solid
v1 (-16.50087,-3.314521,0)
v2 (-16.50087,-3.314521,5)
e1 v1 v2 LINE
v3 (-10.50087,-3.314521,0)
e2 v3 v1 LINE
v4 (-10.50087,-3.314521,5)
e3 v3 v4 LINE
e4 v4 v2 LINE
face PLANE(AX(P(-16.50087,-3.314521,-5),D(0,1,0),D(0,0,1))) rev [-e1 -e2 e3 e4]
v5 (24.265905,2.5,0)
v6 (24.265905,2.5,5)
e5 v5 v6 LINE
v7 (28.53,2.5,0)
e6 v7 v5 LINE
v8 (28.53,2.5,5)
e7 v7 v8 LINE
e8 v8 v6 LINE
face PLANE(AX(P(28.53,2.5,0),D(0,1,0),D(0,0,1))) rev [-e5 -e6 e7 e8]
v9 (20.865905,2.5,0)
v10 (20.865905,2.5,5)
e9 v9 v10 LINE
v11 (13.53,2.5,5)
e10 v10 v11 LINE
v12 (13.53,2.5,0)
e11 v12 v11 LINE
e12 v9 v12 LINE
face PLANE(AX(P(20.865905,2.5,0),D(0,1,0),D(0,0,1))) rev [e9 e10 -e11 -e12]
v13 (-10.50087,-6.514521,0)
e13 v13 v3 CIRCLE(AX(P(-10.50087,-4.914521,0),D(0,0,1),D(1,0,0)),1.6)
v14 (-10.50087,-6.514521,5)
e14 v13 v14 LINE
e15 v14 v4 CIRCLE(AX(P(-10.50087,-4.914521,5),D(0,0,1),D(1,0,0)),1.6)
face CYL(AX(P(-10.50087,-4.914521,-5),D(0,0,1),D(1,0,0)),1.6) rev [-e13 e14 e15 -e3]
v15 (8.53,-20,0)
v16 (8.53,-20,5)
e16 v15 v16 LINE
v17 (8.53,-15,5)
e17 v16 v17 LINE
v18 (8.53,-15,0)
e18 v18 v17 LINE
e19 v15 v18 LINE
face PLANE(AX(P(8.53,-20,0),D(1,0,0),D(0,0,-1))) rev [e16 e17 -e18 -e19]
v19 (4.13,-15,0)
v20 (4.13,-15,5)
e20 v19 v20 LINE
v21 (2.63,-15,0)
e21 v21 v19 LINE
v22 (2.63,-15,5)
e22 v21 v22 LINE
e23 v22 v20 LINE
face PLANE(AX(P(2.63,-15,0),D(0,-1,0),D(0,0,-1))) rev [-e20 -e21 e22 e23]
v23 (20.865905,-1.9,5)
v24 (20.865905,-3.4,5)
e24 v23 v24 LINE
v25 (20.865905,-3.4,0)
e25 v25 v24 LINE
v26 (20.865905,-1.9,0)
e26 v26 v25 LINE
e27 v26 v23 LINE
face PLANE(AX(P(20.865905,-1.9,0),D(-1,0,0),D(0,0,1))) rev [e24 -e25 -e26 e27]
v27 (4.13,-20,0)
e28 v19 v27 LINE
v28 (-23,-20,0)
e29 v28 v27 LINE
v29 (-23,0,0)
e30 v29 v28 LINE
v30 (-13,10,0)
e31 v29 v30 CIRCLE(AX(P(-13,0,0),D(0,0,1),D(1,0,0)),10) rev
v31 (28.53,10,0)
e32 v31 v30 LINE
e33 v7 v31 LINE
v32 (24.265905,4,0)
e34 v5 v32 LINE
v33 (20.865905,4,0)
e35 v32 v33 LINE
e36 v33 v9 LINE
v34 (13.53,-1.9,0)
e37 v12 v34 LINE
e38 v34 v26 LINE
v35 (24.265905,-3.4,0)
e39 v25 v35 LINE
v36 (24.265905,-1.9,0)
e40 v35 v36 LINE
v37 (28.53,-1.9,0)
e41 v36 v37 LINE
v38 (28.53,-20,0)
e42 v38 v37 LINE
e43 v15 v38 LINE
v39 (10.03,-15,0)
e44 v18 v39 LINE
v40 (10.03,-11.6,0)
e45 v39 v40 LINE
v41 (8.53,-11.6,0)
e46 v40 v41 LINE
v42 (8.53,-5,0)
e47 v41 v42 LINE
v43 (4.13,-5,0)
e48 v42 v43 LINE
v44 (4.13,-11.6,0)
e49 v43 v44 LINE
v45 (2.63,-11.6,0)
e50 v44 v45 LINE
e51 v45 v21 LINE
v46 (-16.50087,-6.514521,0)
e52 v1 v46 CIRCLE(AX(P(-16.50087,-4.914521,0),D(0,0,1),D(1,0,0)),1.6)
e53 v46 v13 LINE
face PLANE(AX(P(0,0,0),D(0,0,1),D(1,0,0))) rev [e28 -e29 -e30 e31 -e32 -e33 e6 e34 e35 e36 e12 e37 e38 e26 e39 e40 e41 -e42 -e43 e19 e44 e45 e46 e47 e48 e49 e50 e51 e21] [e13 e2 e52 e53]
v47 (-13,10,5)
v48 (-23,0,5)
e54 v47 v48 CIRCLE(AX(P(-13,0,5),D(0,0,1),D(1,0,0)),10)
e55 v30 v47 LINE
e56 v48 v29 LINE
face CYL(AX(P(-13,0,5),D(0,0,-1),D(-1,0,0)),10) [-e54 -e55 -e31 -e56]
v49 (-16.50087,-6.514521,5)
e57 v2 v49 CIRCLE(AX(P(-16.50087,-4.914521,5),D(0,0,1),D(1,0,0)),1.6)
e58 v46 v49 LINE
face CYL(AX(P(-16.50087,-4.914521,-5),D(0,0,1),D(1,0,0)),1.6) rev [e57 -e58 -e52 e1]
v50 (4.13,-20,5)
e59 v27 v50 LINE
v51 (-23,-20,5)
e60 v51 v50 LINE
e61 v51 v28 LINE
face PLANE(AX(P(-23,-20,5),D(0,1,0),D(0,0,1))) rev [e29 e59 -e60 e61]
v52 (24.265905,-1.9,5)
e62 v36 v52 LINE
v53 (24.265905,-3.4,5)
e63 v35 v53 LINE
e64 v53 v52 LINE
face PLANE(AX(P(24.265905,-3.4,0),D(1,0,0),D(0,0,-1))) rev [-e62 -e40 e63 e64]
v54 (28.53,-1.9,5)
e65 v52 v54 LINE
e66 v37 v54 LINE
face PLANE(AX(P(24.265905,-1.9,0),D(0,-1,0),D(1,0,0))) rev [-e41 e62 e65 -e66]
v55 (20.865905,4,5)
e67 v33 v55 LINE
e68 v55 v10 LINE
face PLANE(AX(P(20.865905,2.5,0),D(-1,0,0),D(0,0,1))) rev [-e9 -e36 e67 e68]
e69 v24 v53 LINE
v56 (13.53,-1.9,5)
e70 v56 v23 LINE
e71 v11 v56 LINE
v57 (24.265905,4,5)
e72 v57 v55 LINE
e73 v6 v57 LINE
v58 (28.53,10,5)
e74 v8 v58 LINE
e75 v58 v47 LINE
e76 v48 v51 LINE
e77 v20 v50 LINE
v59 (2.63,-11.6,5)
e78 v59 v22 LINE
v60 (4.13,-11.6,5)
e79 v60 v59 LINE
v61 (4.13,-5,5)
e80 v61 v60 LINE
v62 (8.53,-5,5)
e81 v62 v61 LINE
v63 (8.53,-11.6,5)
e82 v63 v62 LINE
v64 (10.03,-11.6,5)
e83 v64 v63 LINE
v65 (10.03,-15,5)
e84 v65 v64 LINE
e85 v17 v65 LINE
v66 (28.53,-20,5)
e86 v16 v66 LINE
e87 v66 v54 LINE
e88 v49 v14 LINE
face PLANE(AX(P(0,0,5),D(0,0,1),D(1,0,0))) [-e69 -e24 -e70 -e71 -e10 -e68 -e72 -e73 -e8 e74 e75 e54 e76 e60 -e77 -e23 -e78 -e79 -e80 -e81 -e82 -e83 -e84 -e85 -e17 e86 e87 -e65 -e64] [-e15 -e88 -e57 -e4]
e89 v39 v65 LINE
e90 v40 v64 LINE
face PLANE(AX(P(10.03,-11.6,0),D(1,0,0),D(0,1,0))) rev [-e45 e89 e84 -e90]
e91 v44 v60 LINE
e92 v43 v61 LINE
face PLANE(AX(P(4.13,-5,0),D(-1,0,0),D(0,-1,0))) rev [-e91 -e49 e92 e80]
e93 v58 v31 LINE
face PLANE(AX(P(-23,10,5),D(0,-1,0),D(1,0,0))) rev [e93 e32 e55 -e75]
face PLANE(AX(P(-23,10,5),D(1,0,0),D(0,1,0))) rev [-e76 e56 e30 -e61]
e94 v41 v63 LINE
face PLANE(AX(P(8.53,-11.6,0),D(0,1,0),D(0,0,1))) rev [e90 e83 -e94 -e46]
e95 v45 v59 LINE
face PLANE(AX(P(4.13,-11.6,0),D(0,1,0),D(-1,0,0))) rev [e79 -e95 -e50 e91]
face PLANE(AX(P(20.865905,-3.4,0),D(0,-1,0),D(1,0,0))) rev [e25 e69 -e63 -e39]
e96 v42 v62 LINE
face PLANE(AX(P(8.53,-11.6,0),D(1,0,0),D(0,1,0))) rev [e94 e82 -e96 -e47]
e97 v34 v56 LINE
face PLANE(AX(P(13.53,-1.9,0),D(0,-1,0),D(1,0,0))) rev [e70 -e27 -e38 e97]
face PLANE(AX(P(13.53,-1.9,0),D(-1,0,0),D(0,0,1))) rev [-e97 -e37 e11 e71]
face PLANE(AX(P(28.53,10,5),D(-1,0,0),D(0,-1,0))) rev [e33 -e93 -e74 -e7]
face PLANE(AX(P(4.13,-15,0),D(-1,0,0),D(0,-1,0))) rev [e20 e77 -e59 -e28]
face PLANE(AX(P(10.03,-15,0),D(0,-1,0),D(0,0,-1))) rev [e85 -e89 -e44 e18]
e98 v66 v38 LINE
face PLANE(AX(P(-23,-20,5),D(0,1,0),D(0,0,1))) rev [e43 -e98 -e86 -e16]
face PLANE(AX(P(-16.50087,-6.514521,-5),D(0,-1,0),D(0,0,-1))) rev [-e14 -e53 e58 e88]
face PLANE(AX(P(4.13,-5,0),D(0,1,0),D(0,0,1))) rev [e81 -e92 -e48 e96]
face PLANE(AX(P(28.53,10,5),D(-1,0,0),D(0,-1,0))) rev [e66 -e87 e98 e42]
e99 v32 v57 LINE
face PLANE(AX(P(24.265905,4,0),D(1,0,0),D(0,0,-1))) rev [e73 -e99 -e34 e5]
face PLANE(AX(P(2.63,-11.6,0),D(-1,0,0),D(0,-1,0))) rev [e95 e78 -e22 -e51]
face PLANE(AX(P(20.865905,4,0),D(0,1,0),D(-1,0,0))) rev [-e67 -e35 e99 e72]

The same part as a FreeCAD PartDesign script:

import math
import FreeCAD as App
import Part
import Sketcher

V = App.Vector
Q = App.Units.Quantity


def edges_at(feature, points):
    """Names of the edges that pass closest to the given points."""
    edges = feature.Shape.Edges
    near = lambda p: min(range(len(edges)), key=lambda i: edges[i].distToShape(Part.Vertex(*p))[0])
    return sorted({f"Edge{near(p) + 1}" for p in points})


def add_polygon(sketch, points):
    """Adds a closed chain of lines whose ends are joined by coincident constraints."""
    first, n = sketch.GeometryCount, len(points)
    for a, b in zip(points, points[1:] + points[:1]):
        sketch.addGeometry(Part.LineSegment(App.Vector(*a, 0), App.Vector(*b, 0)), False)
    for i in range(n):
        sketch.addConstraint(Sketcher.Constraint("Coincident", first + i, 2, first + (i + 1) % n, 1))

doc = App.newDocument("Part")
body = doc.addObject("PartDesign::Body", "Body")

# Sketch on XY plane
sketch1 = body.newObject("Sketcher::SketchObject", "Sketch")
sketch1.AttachmentSupport = (doc.getObject("XY_Plane"), [""])
sketch1.MapMode = "FlatFace"
add_polygon(sketch1, [(-23, 10), (-23, -20), (29, -20), (29, 10)])  # lines 0-3
sketch1.addConstraint([
    Sketcher.Constraint("Vertical", 0),
    Sketcher.Constraint("Horizontal", 1),
    Sketcher.Constraint("Vertical", 2),
    Sketcher.Constraint("Horizontal", 3),
    Sketcher.Constraint("DistanceY", 0, 2, 0, 1, Q("30 mm")),
    Sketcher.Constraint("DistanceX", 0, 2, -1, 1, Q("23 mm")),
    Sketcher.Constraint("DistanceY", 0, 2, -1, 1, Q("20 mm")),
    Sketcher.Constraint("DistanceX", 1, 1, 1, 2, Q("51.53 mm")),
])
pad1 = body.newObject("PartDesign::Pad", "Pad")
pad1.Profile = sketch1
pad1.Length = 5

# Sketch on XY plane
sketch2 = body.newObject("Sketcher::SketchObject", "Sketch001")
sketch2.AttachmentSupport = (doc.getObject("XY_Plane"), [""])
sketch2.MapMode = "FlatFace"
sketch2.AttachmentOffset = App.Placement(V(0, 0, 5), App.Rotation())
add_polygon(sketch2, [(13.5, -1.9), (20.9, -1.9), (20.9, -3.4), (24.3, -3.4), (24.3, -1.9), (28.5, -1.9), (28.5, 2.5), (24.3, 2.5), (24.3, 4), (20.9, 4), (20.9, 2.5), (13.5, 2.5)])  # lines 0-11
add_polygon(sketch2, [(4.1, -5), (4.1, -11.6), (2.6, -11.6), (2.6, -15), (4.1, -15), (4.1, -20), (8.5, -20), (8.5, -15), (10, -15), (10, -11.6), (8.5, -11.6), (8.5, -5)])  # lines 12-23
sketch2.addConstraint([
    Sketcher.Constraint("Horizontal", 0),
    Sketcher.Constraint("Vertical", 1),
    Sketcher.Constraint("Horizontal", 2),
    Sketcher.Constraint("Vertical", 3),
    Sketcher.Constraint("Horizontal", 4),
    Sketcher.Constraint("Vertical", 5),
    Sketcher.Constraint("Horizontal", 6),
    Sketcher.Constraint("Vertical", 7),
    Sketcher.Constraint("Horizontal", 8),
    Sketcher.Constraint("Vertical", 9),
    Sketcher.Constraint("Horizontal", 10),
    Sketcher.Constraint("Vertical", 11),
    Sketcher.Constraint("Vertical", 12),
    Sketcher.Constraint("Horizontal", 13),
    Sketcher.Constraint("Vertical", 14),
    Sketcher.Constraint("Horizontal", 15),
    Sketcher.Constraint("Vertical", 16),
    Sketcher.Constraint("Horizontal", 17),
    Sketcher.Constraint("Vertical", 18),
    Sketcher.Constraint("Horizontal", 19),
    Sketcher.Constraint("Vertical", 20),
    Sketcher.Constraint("Horizontal", 21),
    Sketcher.Constraint("Vertical", 22),
    Sketcher.Constraint("Horizontal", 23),
    Sketcher.Constraint("Horizontal", 0, 2, 3, 2),
    Sketcher.Constraint("Horizontal", 6, 2, 9, 2),
    Sketcher.Constraint("Horizontal", 15, 2, 18, 2),
    Sketcher.Constraint("Horizontal", 13, 2, 20, 2),
    Sketcher.Constraint("Vertical", 3, 2, 6, 2),
    Sketcher.Constraint("Vertical", 1, 2, 8, 2),
    Sketcher.Constraint("Vertical", 12, 2, 15, 2),
    Sketcher.Constraint("Vertical", 18, 2, 21, 2),
    Sketcher.Constraint("Equal", 15, 19),
    Sketcher.Constraint("Equal", 21, 1),
    Sketcher.Constraint("Equal", 23, 5),
    Sketcher.Constraint("Equal", 3, 7),
    Sketcher.Constraint("Equal", 8, 14),
    Sketcher.Constraint("DistanceY", 16, 2, 16, 1, Q("5 mm")),
    Sketcher.Constraint("DistanceX", 2, 1, 2, 2, Q("3.4 mm")),
    Sketcher.Constraint("DistanceX", 13, 2, 13, 1, Q("1.5 mm")),
    Sketcher.Constraint("DistanceX", 17, 1, 17, 2, Q("4.4 mm")),
    Sketcher.Constraint("DistanceY", 12, 2, 12, 1, Q("6.6 mm")),
    Sketcher.Constraint("DistanceY", -1, 1, 7, 2, Q("4 mm")),
    Sketcher.Constraint("DistanceY", 14, 2, -1, 1, Q("15 mm")),
    Sketcher.Constraint("DistanceX", 22, 2, 11, 2, Q("5 mm")),
    Sketcher.Constraint("DistanceX", -1, 1, 4, 2, Q("28.53 mm")),
    Sketcher.Constraint("DistanceX", -1, 1, 10, 2, Q("13.53 mm")),
    Sketcher.Constraint("DistanceX", 0, 1, 0, 2, Q("7.335905 mm")),
])
pocket1 = body.newObject("PartDesign::Pocket", "Pocket")
pocket1.Profile = sketch2
pocket1.Length = 5
doc.recompute()

fillet = body.newObject("PartDesign::Fillet", "Fillet")
fillet.Base = (pocket1, edges_at(pocket1, [(-23, 10, 2.5)]))
fillet.Radius = 10

# Sketch on XY plane
sketch3 = body.newObject("Sketcher::SketchObject", "Sketch002")
sketch3.AttachmentSupport = (doc.getObject("XY_Plane"), [""])
sketch3.MapMode = "FlatFace"
sketch3.AttachmentOffset = App.Placement(V(0, 0, 5), App.Rotation())
sketch3.addGeometry([
    Part.LineSegment(V(-10.5, -3.3, 0), V(-16.5, -3.3, 0)),
    Part.ArcOfCircle(Part.Circle(V(-16.5, -4.9, 0), V(0, 0, 1), 1.6), math.radians(90), math.radians(270)),
    Part.LineSegment(V(-16.5, -6.5, 0), V(-10.5, -6.5, 0)),
    Part.ArcOfCircle(Part.Circle(V(-10.5, -4.9, 0), V(0, 0, 1), 1.6), math.radians(-90), math.radians(90)),
], False)
sketch3.addConstraint([
    Sketcher.Constraint("Tangent", 0, 2, 1, 1),
    Sketcher.Constraint("Tangent", 1, 2, 2, 1),
    Sketcher.Constraint("Tangent", 2, 2, 3, 1),
    Sketcher.Constraint("Tangent", 3, 2, 0, 1),
    Sketcher.Constraint("Horizontal", 0),
    Sketcher.Constraint("Horizontal", 2),
    Sketcher.Constraint("Radius", 1, Q("1.6 mm")),
    Sketcher.Constraint("DistanceX", 0, 2, 0, 1, Q("6 mm")),
    Sketcher.Constraint("DistanceX", 1, 3, -1, 1, Q("16.50087 mm")),
    Sketcher.Constraint("DistanceY", 1, 3, -1, 1, Q("4.914521 mm")),
])
pocket2 = body.newObject("PartDesign::Pocket", "Pocket001")
pocket2.Profile = sketch3
pocket2.Length = 10

doc.recompute()
